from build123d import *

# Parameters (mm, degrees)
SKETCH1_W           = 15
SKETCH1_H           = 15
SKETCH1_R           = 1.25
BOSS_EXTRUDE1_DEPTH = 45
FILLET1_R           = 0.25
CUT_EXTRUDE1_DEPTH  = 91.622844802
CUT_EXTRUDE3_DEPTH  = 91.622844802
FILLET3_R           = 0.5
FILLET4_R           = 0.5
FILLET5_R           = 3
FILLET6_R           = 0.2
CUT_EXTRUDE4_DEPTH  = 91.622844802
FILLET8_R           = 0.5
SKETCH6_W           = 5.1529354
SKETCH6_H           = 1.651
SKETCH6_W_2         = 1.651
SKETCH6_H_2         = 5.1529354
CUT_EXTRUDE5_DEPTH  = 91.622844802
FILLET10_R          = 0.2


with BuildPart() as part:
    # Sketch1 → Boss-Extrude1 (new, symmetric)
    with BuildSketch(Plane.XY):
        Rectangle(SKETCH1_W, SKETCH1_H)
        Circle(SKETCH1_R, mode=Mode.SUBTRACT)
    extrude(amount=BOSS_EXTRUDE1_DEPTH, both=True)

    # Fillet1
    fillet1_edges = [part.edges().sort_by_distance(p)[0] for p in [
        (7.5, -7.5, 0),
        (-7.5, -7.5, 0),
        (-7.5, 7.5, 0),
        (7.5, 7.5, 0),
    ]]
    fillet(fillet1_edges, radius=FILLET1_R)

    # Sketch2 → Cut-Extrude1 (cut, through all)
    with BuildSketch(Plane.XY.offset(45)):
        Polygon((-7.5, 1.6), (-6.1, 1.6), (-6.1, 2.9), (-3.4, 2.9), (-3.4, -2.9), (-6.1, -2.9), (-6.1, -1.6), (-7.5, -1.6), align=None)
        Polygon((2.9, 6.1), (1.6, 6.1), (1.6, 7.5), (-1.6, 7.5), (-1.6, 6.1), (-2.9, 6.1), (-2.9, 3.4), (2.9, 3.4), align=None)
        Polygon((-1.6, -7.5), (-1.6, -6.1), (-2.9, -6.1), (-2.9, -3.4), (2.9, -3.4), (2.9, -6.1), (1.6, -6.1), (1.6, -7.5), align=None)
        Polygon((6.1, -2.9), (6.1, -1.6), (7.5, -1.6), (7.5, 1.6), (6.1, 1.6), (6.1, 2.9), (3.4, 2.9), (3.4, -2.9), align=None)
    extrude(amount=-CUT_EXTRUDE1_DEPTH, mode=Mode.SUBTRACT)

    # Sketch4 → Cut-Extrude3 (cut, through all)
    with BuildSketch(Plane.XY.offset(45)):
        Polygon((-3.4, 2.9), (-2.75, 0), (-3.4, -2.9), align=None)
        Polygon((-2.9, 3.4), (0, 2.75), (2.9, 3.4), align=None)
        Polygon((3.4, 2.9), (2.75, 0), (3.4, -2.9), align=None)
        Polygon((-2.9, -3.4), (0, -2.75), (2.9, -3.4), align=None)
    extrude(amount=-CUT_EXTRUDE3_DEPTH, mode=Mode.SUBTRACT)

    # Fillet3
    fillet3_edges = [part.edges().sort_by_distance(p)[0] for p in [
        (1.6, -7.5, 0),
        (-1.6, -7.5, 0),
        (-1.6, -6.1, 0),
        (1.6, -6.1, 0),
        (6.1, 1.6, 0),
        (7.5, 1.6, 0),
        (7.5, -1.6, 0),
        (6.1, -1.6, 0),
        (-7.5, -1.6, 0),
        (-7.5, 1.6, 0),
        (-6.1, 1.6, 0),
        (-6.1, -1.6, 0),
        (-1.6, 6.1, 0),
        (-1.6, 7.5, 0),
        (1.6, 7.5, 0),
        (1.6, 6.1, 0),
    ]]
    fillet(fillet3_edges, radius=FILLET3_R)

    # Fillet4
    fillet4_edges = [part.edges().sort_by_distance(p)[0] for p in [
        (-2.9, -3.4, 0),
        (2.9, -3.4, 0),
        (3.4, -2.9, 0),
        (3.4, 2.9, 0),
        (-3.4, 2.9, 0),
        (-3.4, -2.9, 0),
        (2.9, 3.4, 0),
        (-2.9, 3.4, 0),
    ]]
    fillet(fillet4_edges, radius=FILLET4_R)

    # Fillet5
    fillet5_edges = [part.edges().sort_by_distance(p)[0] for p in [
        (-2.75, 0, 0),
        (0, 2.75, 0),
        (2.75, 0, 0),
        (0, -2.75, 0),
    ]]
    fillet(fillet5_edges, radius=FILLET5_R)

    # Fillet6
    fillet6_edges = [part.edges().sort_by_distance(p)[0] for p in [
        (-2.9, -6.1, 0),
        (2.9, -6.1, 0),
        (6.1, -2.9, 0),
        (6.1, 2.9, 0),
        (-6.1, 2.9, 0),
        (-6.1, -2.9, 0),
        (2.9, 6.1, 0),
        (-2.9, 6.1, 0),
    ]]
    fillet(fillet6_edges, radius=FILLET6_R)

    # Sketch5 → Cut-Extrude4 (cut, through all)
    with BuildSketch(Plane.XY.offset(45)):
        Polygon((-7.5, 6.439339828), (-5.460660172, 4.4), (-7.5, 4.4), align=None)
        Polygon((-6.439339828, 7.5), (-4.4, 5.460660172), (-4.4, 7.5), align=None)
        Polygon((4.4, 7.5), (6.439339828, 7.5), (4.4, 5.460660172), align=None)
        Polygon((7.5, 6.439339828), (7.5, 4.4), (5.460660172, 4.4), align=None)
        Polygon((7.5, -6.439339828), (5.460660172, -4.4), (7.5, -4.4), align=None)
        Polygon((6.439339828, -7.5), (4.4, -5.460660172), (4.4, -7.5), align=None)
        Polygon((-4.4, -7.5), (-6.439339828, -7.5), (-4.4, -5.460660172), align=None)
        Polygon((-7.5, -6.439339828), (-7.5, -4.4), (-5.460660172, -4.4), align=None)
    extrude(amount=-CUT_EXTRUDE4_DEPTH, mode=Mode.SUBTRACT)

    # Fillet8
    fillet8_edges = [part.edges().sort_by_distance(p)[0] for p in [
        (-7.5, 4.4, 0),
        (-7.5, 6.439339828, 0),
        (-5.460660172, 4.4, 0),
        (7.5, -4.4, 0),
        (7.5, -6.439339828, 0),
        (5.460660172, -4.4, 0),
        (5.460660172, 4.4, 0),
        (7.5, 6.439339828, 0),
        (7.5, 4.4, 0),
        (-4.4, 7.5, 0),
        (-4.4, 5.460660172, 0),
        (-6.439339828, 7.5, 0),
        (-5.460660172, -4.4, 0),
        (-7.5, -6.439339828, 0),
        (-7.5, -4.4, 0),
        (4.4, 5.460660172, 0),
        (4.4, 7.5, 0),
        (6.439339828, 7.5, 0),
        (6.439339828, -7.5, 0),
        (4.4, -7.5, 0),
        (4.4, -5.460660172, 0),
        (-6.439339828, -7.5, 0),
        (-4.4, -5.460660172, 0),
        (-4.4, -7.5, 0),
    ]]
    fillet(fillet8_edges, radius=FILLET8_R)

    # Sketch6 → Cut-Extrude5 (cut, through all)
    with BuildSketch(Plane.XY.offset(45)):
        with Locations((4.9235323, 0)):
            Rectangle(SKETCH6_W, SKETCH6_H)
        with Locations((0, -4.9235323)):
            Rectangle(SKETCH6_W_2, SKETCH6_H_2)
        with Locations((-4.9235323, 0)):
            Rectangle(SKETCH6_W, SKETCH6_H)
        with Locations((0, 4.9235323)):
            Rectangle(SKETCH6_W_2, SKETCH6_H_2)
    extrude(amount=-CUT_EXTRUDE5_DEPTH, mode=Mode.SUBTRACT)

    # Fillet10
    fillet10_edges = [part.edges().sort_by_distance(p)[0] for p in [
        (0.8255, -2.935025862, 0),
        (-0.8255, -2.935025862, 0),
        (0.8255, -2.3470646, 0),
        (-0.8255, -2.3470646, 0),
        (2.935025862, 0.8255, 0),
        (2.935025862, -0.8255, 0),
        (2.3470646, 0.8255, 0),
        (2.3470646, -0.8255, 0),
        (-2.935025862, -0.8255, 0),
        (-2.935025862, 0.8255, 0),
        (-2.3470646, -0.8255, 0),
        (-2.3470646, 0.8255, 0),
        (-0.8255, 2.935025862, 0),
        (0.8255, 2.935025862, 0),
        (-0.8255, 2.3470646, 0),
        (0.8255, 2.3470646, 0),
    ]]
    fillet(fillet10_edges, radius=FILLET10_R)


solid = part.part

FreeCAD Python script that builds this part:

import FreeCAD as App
import Part
import Sketcher
Q = App.Units.Quantity


def edges_at(feature, points):
    """Names of the edges that pass closest to the given points."""
    edges = feature.Shape.Edges
    near = lambda p: min(range(len(edges)), key=lambda i: edges[i].distToShape(Part.Vertex(*p))[0])
    return sorted({f"Edge{near(p) + 1}" for p in points})

doc = App.newDocument("Part")
body = doc.addObject("PartDesign::Body", "Body")

sketch1 = body.newObject("Sketcher::SketchObject", "Sketch")
sketch1.AttachmentSupport = (doc.getObject("XY_Plane"), [""])
sketch1.MapMode = "FlatFace"
sketch1.addGeometry([
    Part.LineSegment(App.Vector(-7.5, 7.5, 0), App.Vector(-7.5, -7.5, 0)),
    Part.LineSegment(App.Vector(-7.5, -7.5, 0), App.Vector(7.5, -7.5, 0)),
    Part.LineSegment(App.Vector(7.5, -7.5, 0), App.Vector(7.5, 7.5, 0)),
    Part.LineSegment(App.Vector(7.5, 7.5, 0), App.Vector(-7.5, 7.5, 0)),
    Part.Circle(App.Vector(0, 0, 0), App.Vector(0, 0, 1), 1.2),
], False)
sketch1.addConstraint([
    Sketcher.Constraint("Coincident", 0, 2, 1, 1),
    Sketcher.Constraint("Coincident", 1, 2, 2, 1),
    Sketcher.Constraint("Coincident", 2, 2, 3, 1),
    Sketcher.Constraint("Coincident", 3, 2, 0, 1),
    Sketcher.Constraint("Vertical", 0),
    Sketcher.Constraint("Horizontal", 1),
    Sketcher.Constraint("Vertical", 2),
    Sketcher.Constraint("Horizontal", 3),
    Sketcher.Constraint("Coincident", 4, 3, -1, 1),
    Sketcher.Constraint("Symmetric", 0, 2, 2, 2, -1, 1),
    Sketcher.Constraint("Equal", 3, 0),
    Sketcher.Constraint("Diameter", 4, Q("2.5 mm")),
    Sketcher.Constraint("DistanceX", 1, 1, 1, 2, Q("15 mm")),
])
pad1 = body.newObject("PartDesign::Pad", "Pad")
pad1.Profile = sketch1
pad1.Length = 90
pad1.Midplane = True
doc.recompute()

fillet = body.newObject("PartDesign::Fillet", "Fillet")
fillet.Base = (pad1, edges_at(pad1, [
    (7.5, -7.5, 0),
    (-7.5, -7.5, 0),
    (-7.5, 7.5, 0),
    (7.5, 7.5, 0),
]))
fillet.Radius = 0.25

sketch2 = body.newObject("Sketcher::SketchObject", "Sketch001")
sketch2.AttachmentSupport = (doc.getObject("XY_Plane"), [""])
sketch2.MapMode = "FlatFace"
sketch2.AttachmentOffset = App.Placement(App.Vector(0, 0, 45), App.Rotation())
sketch2.addGeometry([
    Part.LineSegment(App.Vector(-6.1, 1.6, 0), App.Vector(-7.5, 1.6, 0)),
    Part.LineSegment(App.Vector(-7.5, 1.6, 0), App.Vector(-7.5, -1.6, 0)),
    Part.LineSegment(App.Vector(-7.5, -1.6, 0), App.Vector(-6.1, -1.6, 0)),
    Part.LineSegment(App.Vector(-6.1, -1.6, 0), App.Vector(-6.1, -2.9, 0)),
    Part.LineSegment(App.Vector(-6.1, -2.9, 0), App.Vector(-3.4, -2.9, 0)),
    Part.LineSegment(App.Vector(-3.4, -2.9, 0), App.Vector(-3.4, 2.9, 0)),
    Part.LineSegment(App.Vector(-3.4, 2.9, 0), App.Vector(-6.1, 2.9, 0)),
    Part.LineSegment(App.Vector(-6.1, 2.9, 0), App.Vector(-6.1, 1.6, 0)),
    Part.LineSegment(App.Vector(2.9, 6.1, 0), App.Vector(1.6, 6.1, 0)),
    Part.LineSegment(App.Vector(1.6, 6.1, 0), App.Vector(1.6, 7.5, 0)),
    Part.LineSegment(App.Vector(1.6, 7.5, 0), App.Vector(-1.6, 7.5, 0)),
    Part.LineSegment(App.Vector(-1.6, 7.5, 0), App.Vector(-1.6, 6.1, 0)),
    Part.LineSegment(App.Vector(-1.6, 6.1, 0), App.Vector(-2.9, 6.1, 0)),
    Part.LineSegment(App.Vector(-2.9, 6.1, 0), App.Vector(-2.9, 3.4, 0)),
    Part.LineSegment(App.Vector(-2.9, 3.4, 0), App.Vector(2.9, 3.4, 0)),
    Part.LineSegment(App.Vector(2.9, 3.4, 0), App.Vector(2.9, 6.1, 0)),
    Part.LineSegment(App.Vector(-1.6, -6.1, 0), App.Vector(-1.6, -7.5, 0)),
    Part.LineSegment(App.Vector(-1.6, -7.5, 0), App.Vector(1.6, -7.5, 0)),
    Part.LineSegment(App.Vector(1.6, -7.5, 0), App.Vector(1.6, -6.1, 0)),
    Part.LineSegment(App.Vector(1.6, -6.1, 0), App.Vector(2.9, -6.1, 0)),
    Part.LineSegment(App.Vector(2.9, -6.1, 0), App.Vector(2.9, -3.4, 0)),
    Part.LineSegment(App.Vector(2.9, -3.4, 0), App.Vector(-2.9, -3.4, 0)),
    Part.LineSegment(App.Vector(-2.9, -3.4, 0), App.Vector(-2.9, -6.1, 0)),
    Part.LineSegment(App.Vector(-2.9, -6.1, 0), App.Vector(-1.6, -6.1, 0)),
    Part.LineSegment(App.Vector(6.1, -2.9, 0), App.Vector(6.1, -1.6, 0)),
    Part.LineSegment(App.Vector(6.1, -1.6, 0), App.Vector(7.5, -1.6, 0)),
    Part.LineSegment(App.Vector(7.5, -1.6, 0), App.Vector(7.5, 1.6, 0)),
    Part.LineSegment(App.Vector(7.5, 1.6, 0), App.Vector(6.1, 1.6, 0)),
    Part.LineSegment(App.Vector(6.1, 1.6, 0), App.Vector(6.1, 2.9, 0)),
    Part.LineSegment(App.Vector(6.1, 2.9, 0), App.Vector(3.4, 2.9, 0)),
    Part.LineSegment(App.Vector(3.4, 2.9, 0), App.Vector(3.4, -2.9, 0)),
    Part.LineSegment(App.Vector(3.4, -2.9, 0), App.Vector(6.1, -2.9, 0)),
], False)
sketch2.addConstraint([
    Sketcher.Constraint("Coincident", 0, 2, 1, 1),
    Sketcher.Constraint("Coincident", 1, 2, 2, 1),
    Sketcher.Constraint("Coincident", 2, 2, 3, 1),
    Sketcher.Constraint("Coincident", 3, 2, 4, 1),
    Sketcher.Constraint("Coincident", 4, 2, 5, 1),
    Sketcher.Constraint("Coincident", 5, 2, 6, 1),
    Sketcher.Constraint("Coincident", 6, 2, 7, 1),
    Sketcher.Constraint("Coincident", 7, 2, 0, 1),
    Sketcher.Constraint("Coincident", 8, 2, 9, 1),
    Sketcher.Constraint("Coincident", 9, 2, 10, 1),
    Sketcher.Constraint("Coincident", 10, 2, 11, 1),
    Sketcher.Constraint("Coincident", 11, 2, 12, 1),
    Sketcher.Constraint("Coincident", 12, 2, 13, 1),
    Sketcher.Constraint("Coincident", 13, 2, 14, 1),
    Sketcher.Constraint("Coincident", 14, 2, 15, 1),
    Sketcher.Constraint("Coincident", 15, 2, 8, 1),
    Sketcher.Constraint("Coincident", 16, 2, 17, 1),
    Sketcher.Constraint("Coincident", 17, 2, 18, 1),
    Sketcher.Constraint("Coincident", 18, 2, 19, 1),
    Sketcher.Constraint("Coincident", 19, 2, 20, 1),
    Sketcher.Constraint("Coincident", 20, 2, 21, 1),
    Sketcher.Constraint("Coincident", 21, 2, 22, 1),
    Sketcher.Constraint("Coincident", 22, 2, 23, 1),
    Sketcher.Constraint("Coincident", 23, 2, 16, 1),
    Sketcher.Constraint("Coincident", 24, 2, 25, 1),
    Sketcher.Constraint("Coincident", 25, 2, 26, 1),
    Sketcher.Constraint("Coincident", 26, 2, 27, 1),
    Sketcher.Constraint("Coincident", 27, 2, 28, 1),
    Sketcher.Constraint("Coincident", 28, 2, 29, 1),
    Sketcher.Constraint("Coincident", 29, 2, 30, 1),
    Sketcher.Constraint("Coincident", 30, 2, 31, 1),
    Sketcher.Constraint("Coincident", 31, 2, 24, 1),
    Sketcher.Constraint("Horizontal", 0),
    Sketcher.Constraint("Vertical", 1),
    Sketcher.Constraint("Horizontal", 2),
    Sketcher.Constraint("Vertical", 3),
    Sketcher.Constraint("Horizontal", 4),
    Sketcher.Constraint("Vertical", 5),
    Sketcher.Constraint("Horizontal", 6),
    Sketcher.Constraint("Vertical", 7),
    Sketcher.Constraint("Horizontal", 8),
    Sketcher.Constraint("Vertical", 9),
    Sketcher.Constraint("Horizontal", 10),
    Sketcher.Constraint("Vertical", 11),
    Sketcher.Constraint("Horizontal", 12),
    Sketcher.Constraint("Vertical", 13),
    Sketcher.Constraint("Horizontal", 14),
    Sketcher.Constraint("Vertical", 15),
    Sketcher.Constraint("Vertical", 16),
    Sketcher.Constraint("Horizontal", 17),
    Sketcher.Constraint("Vertical", 18),
    Sketcher.Constraint("Horizontal", 19),
    Sketcher.Constraint("Vertical", 20),
    Sketcher.Constraint("Horizontal", 21),
    Sketcher.Constraint("Vertical", 22),
    Sketcher.Constraint("Horizontal", 23),
    Sketcher.Constraint("Vertical", 24),
    Sketcher.Constraint("Horizontal", 25),
    Sketcher.Constraint("Vertical", 26),
    Sketcher.Constraint("Horizontal", 27),
    Sketcher.Constraint("Vertical", 28),
    Sketcher.Constraint("Horizontal", 29),
    Sketcher.Constraint("Vertical", 30),
    Sketcher.Constraint("Horizontal", 31),
    Sketcher.Constraint("Symmetric", 9, 2, 16, 2, -1, 1),
    Sketcher.Constraint("Symmetric", 11, 2, 18, 2, -1, 1),
    Sketcher.Constraint("Symmetric", 13, 2, 20, 2, -1, 1),
    Sketcher.Constraint("Symmetric", 15, 2, 22, 2, -1, 1),
    Sketcher.Constraint("Symmetric", 7, 2, 24, 2, -1, 1),
    Sketcher.Constraint("Symmetric", 1, 2, 26, 2, -1, 1),
    Sketcher.Constraint("Symmetric", 3, 2, 28, 2, -1, 1),
    Sketcher.Constraint("Symmetric", 5, 2, 30, 2, -1, 1),
    Sketcher.Constraint("Symmetric", 8, 2, 11, 2, -2),
    Sketcher.Constraint("Symmetric", 2, 2, 24, 2, -2),
    Sketcher.Constraint("Horizontal", 6, 2, 28, 2),
    Sketcher.Constraint("Vertical", 15, 2, 19, 2),
    Sketcher.Constraint("Equal", 17, 1),
    Sketcher.Constraint("Equal", 23, 3),
    Sketcher.Constraint("Equal", 27, 9),
    Sketcher.Constraint("Equal", 31, 13),
    Sketcher.Constraint("DistanceX", 0, 2, 0, 1, Q("1.4 mm")),
    Sketcher.Constraint("DistanceX", 4, 1, 4, 2, Q("2.7 mm")),
    Sketcher.Constraint("DistanceX", 8, 2, 8, 1, Q("1.3 mm")),
    Sketcher.Constraint("DistanceX", 10, 2, 10, 1, Q("3.2 mm")),
    Sketcher.Constraint("DistanceX", 5, 2, 8, 2, Q("5 mm")),
    Sketcher.Constraint("DistanceY", 4, 2, 8, 2, Q("9 mm")),
])
pocket1 = body.newObject("PartDesign::Pocket", "Pocket")
pocket1.Profile = sketch2
pocket1.Type = "ThroughAll"

sketch3 = body.newObject("Sketcher::SketchObject", "Sketch002")
sketch3.AttachmentSupport = (doc.getObject("XY_Plane"), [""])
sketch3.MapMode = "FlatFace"
sketch3.AttachmentOffset = App.Placement(App.Vector(0, 0, 45), App.Rotation())
sketch3.addGeometry([
    Part.LineSegment(App.Vector(-2.8, 0, 0), App.Vector(-3.4, 2.9, 0)),
    Part.LineSegment(App.Vector(-3.4, 2.9, 0), App.Vector(-3.4, -2.9, 0)),
    Part.LineSegment(App.Vector(-3.4, -2.9, 0), App.Vector(-2.8, 0, 0)),
    Part.LineSegment(App.Vector(-2.9, 3.4, 0), App.Vector(0, 2.8, 0)),
    Part.LineSegment(App.Vector(0, 2.8, 0), App.Vector(2.9, 3.4, 0)),
    Part.LineSegment(App.Vector(2.9, 3.4, 0), App.Vector(-2.9, 3.4, 0)),
    Part.LineSegment(App.Vector(3.4, 2.9, 0), App.Vector(2.8, 0, 0)),
    Part.LineSegment(App.Vector(2.8, 0, 0), App.Vector(3.4, -2.9, 0)),
    Part.LineSegment(App.Vector(3.4, -2.9, 0), App.Vector(3.4, 2.9, 0)),
    Part.LineSegment(App.Vector(0, -2.8, 0), App.Vector(-2.9, -3.4, 0)),
    Part.LineSegment(App.Vector(-2.9, -3.4, 0), App.Vector(2.9, -3.4, 0)),
    Part.LineSegment(App.Vector(2.9, -3.4, 0), App.Vector(0, -2.8, 0)),
], False)
sketch3.addConstraint([
    Sketcher.Constraint("Coincident", 0, 2, 1, 1),
    Sketcher.Constraint("Coincident", 1, 2, 2, 1),
    Sketcher.Constraint("Coincident", 2, 2, 0, 1),
    Sketcher.Constraint("Coincident", 3, 2, 4, 1),
    Sketcher.Constraint("Coincident", 4, 2, 5, 1),
    Sketcher.Constraint("Coincident", 5, 2, 3, 1),
    Sketcher.Constraint("Coincident", 6, 2, 7, 1),
    Sketcher.Constraint("Coincident", 7, 2, 8, 1),
    Sketcher.Constraint("Coincident", 8, 2, 6, 1),
    Sketcher.Constraint("Coincident", 9, 2, 10, 1),
    Sketcher.Constraint("Coincident", 10, 2, 11, 1),
    Sketcher.Constraint("Coincident", 11, 2, 9, 1),
    Sketcher.Constraint("Vertical", 1),
    Sketcher.Constraint("Horizontal", 5),
    Sketcher.Constraint("Vertical", 8),
    Sketcher.Constraint("Horizontal", 10),
    Sketcher.Constraint("Symmetric", 2, 2, 6, 2, -1, 1),
    Sketcher.Constraint("Symmetric", 0, 2, 7, 2, -1, 1),
    Sketcher.Constraint("Symmetric", 4, 2, 9, 2, -1, 1),
    Sketcher.Constraint("Symmetric", 3, 2, 11, 2, -1, 1),
    Sketcher.Constraint("PointOnObject", 2, 2, -1),
    Sketcher.Constraint("PointOnObject", 3, 2, -2),
    Sketcher.Constraint("Perpendicular", 2, 3),
    Sketcher.Constraint("Perpendicular", 0, 4),
    Sketcher.Constraint("Perpendicular", 3, 6),
    Sketcher.Constraint("Perpendicular", 6, 11),
    Sketcher.Constraint("Horizontal", 1, 2, 7, 2),
    Sketcher.Constraint("Equal", 10, 1),
    Sketcher.Constraint("DistanceX", 5, 2, 5, 1, Q("5.8 mm")),
    Sketcher.Constraint("DistanceX", 0, 2, -1, 1, Q("3.4 mm")),
    Sketcher.Constraint("DistanceY", -1, 1, 4, 2, Q("3.4 mm")),
    Sketcher.Constraint("DistanceX", 2, 2, 6, 2, Q("5.5 mm")),
])
pocket2 = body.newObject("PartDesign::Pocket", "Pocket001")
pocket2.Profile = sketch3
pocket2.Type = "ThroughAll"
doc.recompute()

fillet2 = body.newObject("PartDesign::Fillet", "Fillet001")
fillet2.Base = (pocket2, edges_at(pocket2, [
    (1.6, -7.5, 0),
    (-1.6, -7.5, 0),
    (-1.6, -6.1, 0),
    (1.6, -6.1, 0),
    (6.1, 1.6, 0),
    (7.5, 1.6, 0),
    (7.5, -1.6, 0),
    (6.1, -1.6, 0),
    (-7.5, -1.6, 0),
    (-7.5, 1.6, 0),
    (-6.1, 1.6, 0),
    (-6.1, -1.6, 0),
    (-1.6, 6.1, 0),
    (-1.6, 7.5, 0),
    (1.6, 7.5, 0),
    (1.6, 6.1, 0),
]))
fillet2.Radius = 0.5
doc.recompute()

fillet3 = body.newObject("PartDesign::Fillet", "Fillet002")
fillet3.Base = (fillet2, edges_at(fillet2, [
    (-2.9, -3.4, 0),
    (2.9, -3.4, 0),
    (3.4, -2.9, 0),
    (3.4, 2.9, 0),
    (-3.4, 2.9, 0),
    (-3.4, -2.9, 0),
    (2.9, 3.4, 0),
    (-2.9, 3.4, 0),
]))
fillet3.Radius = 0.5
doc.recompute()

fillet4 = body.newObject("PartDesign::Fillet", "Fillet003")
fillet4.Base = (fillet3, edges_at(fillet3, [
    (-2.75, 0, 0),
    (0, 2.75, 0),
    (2.75, 0, 0),
    (0, -2.75, 0),
]))
fillet4.Radius = 3
doc.recompute()

fillet5 = body.newObject("PartDesign::Fillet", "Fillet004")
fillet5.Base = (fillet4, edges_at(fillet4, [
    (-2.9, -6.1, 0),
    (2.9, -6.1, 0),
    (6.1, -2.9, 0),
    (6.1, 2.9, 0),
    (-6.1, 2.9, 0),
    (-6.1, -2.9, 0),
    (2.9, 6.1, 0),
    (-2.9, 6.1, 0),
]))
fillet5.Radius = 0.2

sketch4 = body.newObject("Sketcher::SketchObject", "Sketch003")
sketch4.AttachmentSupport = (doc.getObject("XY_Plane"), [""])
sketch4.MapMode = "FlatFace"
sketch4.AttachmentOffset = App.Placement(App.Vector(0, 0, 45), App.Rotation())
sketch4.addGeometry([
    Part.LineSegment(App.Vector(-5.5, 4.4, 0), App.Vector(-7.5, 6.4, 0)),
    Part.LineSegment(App.Vector(-7.5, 6.4, 0), App.Vector(-7.5, 4.4, 0)),
    Part.LineSegment(App.Vector(-7.5, 4.4, 0), App.Vector(-5.5, 4.4, 0)),
    Part.LineSegment(App.Vector(-6.4, 7.5, 0), App.Vector(-4.4, 5.5, 0)),
    Part.LineSegment(App.Vector(-4.4, 5.5, 0), App.Vector(-4.4, 7.5, 0)),
    Part.LineSegment(App.Vector(-4.4, 7.5, 0), App.Vector(-6.4, 7.5, 0)),
    Part.LineSegment(App.Vector(6.4, 7.5, 0), App.Vector(4.4, 7.5, 0)),
    Part.LineSegment(App.Vector(4.4, 7.5, 0), App.Vector(4.4, 5.5, 0)),
    Part.LineSegment(App.Vector(4.4, 5.5, 0), App.Vector(6.4, 7.5, 0)),
    Part.LineSegment(App.Vector(7.5, 4.4, 0), App.Vector(7.5, 6.4, 0)),
    Part.LineSegment(App.Vector(7.5, 6.4, 0), App.Vector(5.5, 4.4, 0)),
    Part.LineSegment(App.Vector(5.5, 4.4, 0), App.Vector(7.5, 4.4, 0)),
    Part.LineSegment(App.Vector(5.5, -4.4, 0), App.Vector(7.5, -6.4, 0)),
    Part.LineSegment(App.Vector(7.5, -6.4, 0), App.Vector(7.5, -4.4, 0)),
    Part.LineSegment(App.Vector(7.5, -4.4, 0), App.Vector(5.5, -4.4, 0)),
    Part.LineSegment(App.Vector(6.4, -7.5, 0), App.Vector(4.4, -5.5, 0)),
    Part.LineSegment(App.Vector(4.4, -5.5, 0), App.Vector(4.4, -7.5, 0)),
    Part.LineSegment(App.Vector(4.4, -7.5, 0), App.Vector(6.4, -7.5, 0)),
    Part.LineSegment(App.Vector(-6.4, -7.5, 0), App.Vector(-4.4, -7.5, 0)),
    Part.LineSegment(App.Vector(-4.4, -7.5, 0), App.Vector(-4.4, -5.5, 0)),
    Part.LineSegment(App.Vector(-4.4, -5.5, 0), App.Vector(-6.4, -7.5, 0)),
    Part.LineSegment(App.Vector(-7.5, -4.4, 0), App.Vector(-7.5, -6.4, 0)),
    Part.LineSegment(App.Vector(-7.5, -6.4, 0), App.Vector(-5.5, -4.4, 0)),
    Part.LineSegment(App.Vector(-5.5, -4.4, 0), App.Vector(-7.5, -4.4, 0)),
], False)
sketch4.addConstraint([
    Sketcher.Constraint("Coincident", 0, 2, 1, 1),
    Sketcher.Constraint("Coincident", 1, 2, 2, 1),
    Sketcher.Constraint("Coincident", 2, 2, 0, 1),
    Sketcher.Constraint("Coincident", 3, 2, 4, 1),
    Sketcher.Constraint("Coincident", 4, 2, 5, 1),
    Sketcher.Constraint("Coincident", 5, 2, 3, 1),
    Sketcher.Constraint("Coincident", 6, 2, 7, 1),
    Sketcher.Constraint("Coincident", 7, 2, 8, 1),
    Sketcher.Constraint("Coincident", 8, 2, 6, 1),
    Sketcher.Constraint("Coincident", 9, 2, 10, 1),
    Sketcher.Constraint("Coincident", 10, 2, 11, 1),
    Sketcher.Constraint("Coincident", 11, 2, 9, 1),
    Sketcher.Constraint("Coincident", 12, 2, 13, 1),
    Sketcher.Constraint("Coincident", 13, 2, 14, 1),
    Sketcher.Constraint("Coincident", 14, 2, 12, 1),
    Sketcher.Constraint("Coincident", 15, 2, 16, 1),
    Sketcher.Constraint("Coincident", 16, 2, 17, 1),
    Sketcher.Constraint("Coincident", 17, 2, 15, 1),
    Sketcher.Constraint("Coincident", 18, 2, 19, 1),
    Sketcher.Constraint("Coincident", 19, 2, 20, 1),
    Sketcher.Constraint("Coincident", 20, 2, 18, 1),
    Sketcher.Constraint("Coincident", 21, 2, 22, 1),
    Sketcher.Constraint("Coincident", 22, 2, 23, 1),
    Sketcher.Constraint("Coincident", 23, 2, 21, 1),
    Sketcher.Constraint("Vertical", 1),
    Sketcher.Constraint("Horizontal", 2),
    Sketcher.Constraint("Vertical", 4),
    Sketcher.Constraint("Horizontal", 5),
    Sketcher.Constraint("Horizontal", 6),
    Sketcher.Constraint("Vertical", 7),
    Sketcher.Constraint("Vertical", 9),
    Sketcher.Constraint("Horizontal", 11),
    Sketcher.Constraint("Vertical", 13),
    Sketcher.Constraint("Horizontal", 14),
    Sketcher.Constraint("Vertical", 16),
    Sketcher.Constraint("Horizontal", 17),
    Sketcher.Constraint("Horizontal", 18),
    Sketcher.Constraint("Vertical", 19),
    Sketcher.Constraint("Vertical", 21),
    Sketcher.Constraint("Horizontal", 23),
    Sketcher.Constraint("Symmetric", 0, 2, 12, 2, -1, 1),
    Sketcher.Constraint("Symmetric", 2, 2, 14, 2, -1, 1),
    Sketcher.Constraint("Symmetric", 3, 2, 15, 2, -1, 1),
    Sketcher.Constraint("Symmetric", 5, 2, 17, 2, -1, 1),
    Sketcher.Constraint("Symmetric", 6, 2, 18, 2, -1, 1),
    Sketcher.Constraint("Symmetric", 9, 2, 21, 2, -1, 1),
    Sketcher.Constraint("Symmetric", 10, 2, 22, 2, -1, 1),
    Sketcher.Constraint("Symmetric", 4, 2, 6, 2, -2),
    Sketcher.Constraint("Symmetric", 0, 2, 9, 2, -2),
    Sketcher.Constraint("Symmetric", 2, 2, 10, 2, -2),
    Sketcher.Constraint("Parallel", 0, 3),
    Sketcher.Constraint("Perpendicular", 3, 8),
    Sketcher.Constraint("Parallel", 8, 10),
    Sketcher.Constraint("Perpendicular", 15, 20),
    Sketcher.Constraint("Horizontal", 3, 2, 7, 2),
    Sketcher.Constraint("Horizontal", 15, 2, 19, 2),
    Sketcher.Constraint("Equal", 2, 5),
    Sketcher.Constraint("DistanceX", 0, 2, -1, 1, Q("7.5 mm")),
    Sketcher.Constraint("DistanceY", -1, 1, 1, 2, Q("4.4 mm")),
    Sketcher.Constraint("DistanceX", 3, 2, -1, 1, Q("4.4 mm")),
    Sketcher.Constraint("DistanceY", -1, 1, 4, 2, Q("7.5 mm")),
    Sketcher.Constraint("DistanceX", 2, 1, 2, 2, Q("2.03934 mm")),
])
pocket3 = body.newObject("PartDesign::Pocket", "Pocket002")
pocket3.Profile = sketch4
pocket3.Type = "ThroughAll"
doc.recompute()

fillet6 = body.newObject("PartDesign::Fillet", "Fillet005")
fillet6.Base = (pocket3, edges_at(pocket3, [
    (-7.5, 4.4, 0),
    (-7.5, 6.439, 0),
    (-5.461, 4.4, 0),
    (7.5, -4.4, 0),
    (7.5, -6.439, 0),
    (5.461, -4.4, 0),
    (5.461, 4.4, 0),
    (7.5, 6.439, 0),
    (7.5, 4.4, 0),
    (-4.4, 7.5, 0),
    (-4.4, 5.461, 0),
    (-6.439, 7.5, 0),
    (-5.461, -4.4, 0),
    (-7.5, -6.439, 0),
    (-7.5, -4.4, 0),
    (4.4, 5.461, 0),
    (4.4, 7.5, 0),
    (6.439, 7.5, 0),
    (6.439, -7.5, 0),
    (4.4, -7.5, 0),
    (4.4, -5.461, 0),
    (-6.439, -7.5, 0),
    (-4.4, -5.461, 0),
    (-4.4, -7.5, 0),
]))
fillet6.Radius = 0.5

sketch5 = body.newObject("Sketcher::SketchObject", "Sketch004")
sketch5.AttachmentSupport = (doc.getObject("XY_Plane"), [""])
sketch5.MapMode = "FlatFace"
sketch5.AttachmentOffset = App.Placement(App.Vector(0, 0, 45), App.Rotation())
sketch5.addGeometry([
    Part.LineSegment(App.Vector(2.3, 0.8, 0), App.Vector(2.3, -0.8, 0)),
    Part.LineSegment(App.Vector(2.3, -0.8, 0), App.Vector(7.5, -0.8, 0)),
    Part.LineSegment(App.Vector(7.5, -0.8, 0), App.Vector(7.5, 0.8, 0)),
    Part.LineSegment(App.Vector(7.5, 0.8, 0), App.Vector(2.3, 0.8, 0)),
    Part.LineSegment(App.Vector(-0.8, -2.3, 0), App.Vector(-0.8, -7.5, 0)),
    Part.LineSegment(App.Vector(-0.8, -7.5, 0), App.Vector(0.8, -7.5, 0)),
    Part.LineSegment(App.Vector(0.8, -7.5, 0), App.Vector(0.8, -2.3, 0)),
    Part.LineSegment(App.Vector(0.8, -2.3, 0), App.Vector(-0.8, -2.3, 0)),
    Part.LineSegment(App.Vector(-7.5, 0.8, 0), App.Vector(-7.5, -0.8, 0)),
    Part.LineSegment(App.Vector(-7.5, -0.8, 0), App.Vector(-2.3, -0.8, 0)),
    Part.LineSegment(App.Vector(-2.3, -0.8, 0), App.Vector(-2.3, 0.8, 0)),
    Part.LineSegment(App.Vector(-2.3, 0.8, 0), App.Vector(-7.5, 0.8, 0)),
    Part.LineSegment(App.Vector(-0.8, 7.5, 0), App.Vector(-0.8, 2.3, 0)),
    Part.LineSegment(App.Vector(-0.8, 2.3, 0), App.Vector(0.8, 2.3, 0)),
    Part.LineSegment(App.Vector(0.8, 2.3, 0), App.Vector(0.8, 7.5, 0)),
    Part.LineSegment(App.Vector(0.8, 7.5, 0), App.Vector(-0.8, 7.5, 0)),
], False)
sketch5.addConstraint([
    Sketcher.Constraint("Coincident", 0, 2, 1, 1),
    Sketcher.Constraint("Coincident", 1, 2, 2, 1),
    Sketcher.Constraint("Coincident", 2, 2, 3, 1),
    Sketcher.Constraint("Coincident", 3, 2, 0, 1),
    Sketcher.Constraint("Coincident", 4, 2, 5, 1),
    Sketcher.Constraint("Coincident", 5, 2, 6, 1),
    Sketcher.Constraint("Coincident", 6, 2, 7, 1),
    Sketcher.Constraint("Coincident", 7, 2, 4, 1),
    Sketcher.Constraint("Coincident", 8, 2, 9, 1),
    Sketcher.Constraint("Coincident", 9, 2, 10, 1),
    Sketcher.Constraint("Coincident", 10, 2, 11, 1),
    Sketcher.Constraint("Coincident", 11, 2, 8, 1),
    Sketcher.Constraint("Coincident", 12, 2, 13, 1),
    Sketcher.Constraint("Coincident", 13, 2, 14, 1),
    Sketcher.Constraint("Coincident", 14, 2, 15, 1),
    Sketcher.Constraint("Coincident", 15, 2, 12, 1),
    Sketcher.Constraint("Vertical", 0),
    Sketcher.Constraint("Horizontal", 1),
    Sketcher.Constraint("Vertical", 2),
    Sketcher.Constraint("Horizontal", 3),
    Sketcher.Constraint("Vertical", 4),
    Sketcher.Constraint("Horizontal", 5),
    Sketcher.Constraint("Vertical", 6),
    Sketcher.Constraint("Horizontal", 7),
    Sketcher.Constraint("Vertical", 8),
    Sketcher.Constraint("Horizontal", 9),
    Sketcher.Constraint("Vertical", 10),
    Sketcher.Constraint("Horizontal", 11),
    Sketcher.Constraint("Vertical", 12),
    Sketcher.Constraint("Horizontal", 13),
    Sketcher.Constraint("Vertical", 14),
    Sketcher.Constraint("Horizontal", 15),
    Sketcher.Constraint("Symmetric", 2, 2, 8, 2, -1, 1),
    Sketcher.Constraint("Symmetric", 0, 2, 10, 2, -1, 1),
    Sketcher.Constraint("Symmetric", 6, 2, 12, 2, -1, 1),
    Sketcher.Constraint("Symmetric", 4, 2, 14, 2, -1, 1),
    Sketcher.Constraint("Horizontal", 1, 2, 8, 2),
    Sketcher.Constraint("Vertical", 7, 2, 12, 2),
    Sketcher.Constraint("Equal", 15, 0),
    Sketcher.Constraint("Equal", 11, 4),
    Sketcher.Constraint("DistanceX", -1, 1, 1, 2, Q("7.5 mm")),
    Sketcher.Constraint("DistanceY", 4, 2, -1, 1, Q("7.5 mm")),
    Sketcher.Constraint("DistanceX", 5, 1, 5, 2, Q("1.651 mm")),
    Sketcher.Constraint("DistanceX", 1, 1, 1, 2, Q("5.152935 mm")),
])
pocket4 = body.newObject("PartDesign::Pocket", "Pocket003")
pocket4.Profile = sketch5
pocket4.Type = "ThroughAll"
doc.recompute()

fillet7 = body.newObject("PartDesign::Fillet", "Fillet006")
fillet7.Base = (pocket4, edges_at(pocket4, [
    (0.826, -2.935, 0),
    (-0.826, -2.935, 0),
    (0.826, -2.347, 0),
    (-0.826, -2.347, 0),
    (2.935, 0.826, 0),
    (2.935, -0.826, 0),
    (2.347, 0.826, 0),
    (2.347, -0.826, 0),
    (-2.935, -0.826, 0),
    (-2.935, 0.826, 0),
    (-2.347, -0.826, 0),
    (-2.347, 0.826, 0),
    (-0.826, 2.935, 0),
    (0.826, 2.935, 0),
    (-0.826, 2.347, 0),
    (0.826, 2.347, 0),
]))
fillet7.Radius = 0.2

doc.recompute()
